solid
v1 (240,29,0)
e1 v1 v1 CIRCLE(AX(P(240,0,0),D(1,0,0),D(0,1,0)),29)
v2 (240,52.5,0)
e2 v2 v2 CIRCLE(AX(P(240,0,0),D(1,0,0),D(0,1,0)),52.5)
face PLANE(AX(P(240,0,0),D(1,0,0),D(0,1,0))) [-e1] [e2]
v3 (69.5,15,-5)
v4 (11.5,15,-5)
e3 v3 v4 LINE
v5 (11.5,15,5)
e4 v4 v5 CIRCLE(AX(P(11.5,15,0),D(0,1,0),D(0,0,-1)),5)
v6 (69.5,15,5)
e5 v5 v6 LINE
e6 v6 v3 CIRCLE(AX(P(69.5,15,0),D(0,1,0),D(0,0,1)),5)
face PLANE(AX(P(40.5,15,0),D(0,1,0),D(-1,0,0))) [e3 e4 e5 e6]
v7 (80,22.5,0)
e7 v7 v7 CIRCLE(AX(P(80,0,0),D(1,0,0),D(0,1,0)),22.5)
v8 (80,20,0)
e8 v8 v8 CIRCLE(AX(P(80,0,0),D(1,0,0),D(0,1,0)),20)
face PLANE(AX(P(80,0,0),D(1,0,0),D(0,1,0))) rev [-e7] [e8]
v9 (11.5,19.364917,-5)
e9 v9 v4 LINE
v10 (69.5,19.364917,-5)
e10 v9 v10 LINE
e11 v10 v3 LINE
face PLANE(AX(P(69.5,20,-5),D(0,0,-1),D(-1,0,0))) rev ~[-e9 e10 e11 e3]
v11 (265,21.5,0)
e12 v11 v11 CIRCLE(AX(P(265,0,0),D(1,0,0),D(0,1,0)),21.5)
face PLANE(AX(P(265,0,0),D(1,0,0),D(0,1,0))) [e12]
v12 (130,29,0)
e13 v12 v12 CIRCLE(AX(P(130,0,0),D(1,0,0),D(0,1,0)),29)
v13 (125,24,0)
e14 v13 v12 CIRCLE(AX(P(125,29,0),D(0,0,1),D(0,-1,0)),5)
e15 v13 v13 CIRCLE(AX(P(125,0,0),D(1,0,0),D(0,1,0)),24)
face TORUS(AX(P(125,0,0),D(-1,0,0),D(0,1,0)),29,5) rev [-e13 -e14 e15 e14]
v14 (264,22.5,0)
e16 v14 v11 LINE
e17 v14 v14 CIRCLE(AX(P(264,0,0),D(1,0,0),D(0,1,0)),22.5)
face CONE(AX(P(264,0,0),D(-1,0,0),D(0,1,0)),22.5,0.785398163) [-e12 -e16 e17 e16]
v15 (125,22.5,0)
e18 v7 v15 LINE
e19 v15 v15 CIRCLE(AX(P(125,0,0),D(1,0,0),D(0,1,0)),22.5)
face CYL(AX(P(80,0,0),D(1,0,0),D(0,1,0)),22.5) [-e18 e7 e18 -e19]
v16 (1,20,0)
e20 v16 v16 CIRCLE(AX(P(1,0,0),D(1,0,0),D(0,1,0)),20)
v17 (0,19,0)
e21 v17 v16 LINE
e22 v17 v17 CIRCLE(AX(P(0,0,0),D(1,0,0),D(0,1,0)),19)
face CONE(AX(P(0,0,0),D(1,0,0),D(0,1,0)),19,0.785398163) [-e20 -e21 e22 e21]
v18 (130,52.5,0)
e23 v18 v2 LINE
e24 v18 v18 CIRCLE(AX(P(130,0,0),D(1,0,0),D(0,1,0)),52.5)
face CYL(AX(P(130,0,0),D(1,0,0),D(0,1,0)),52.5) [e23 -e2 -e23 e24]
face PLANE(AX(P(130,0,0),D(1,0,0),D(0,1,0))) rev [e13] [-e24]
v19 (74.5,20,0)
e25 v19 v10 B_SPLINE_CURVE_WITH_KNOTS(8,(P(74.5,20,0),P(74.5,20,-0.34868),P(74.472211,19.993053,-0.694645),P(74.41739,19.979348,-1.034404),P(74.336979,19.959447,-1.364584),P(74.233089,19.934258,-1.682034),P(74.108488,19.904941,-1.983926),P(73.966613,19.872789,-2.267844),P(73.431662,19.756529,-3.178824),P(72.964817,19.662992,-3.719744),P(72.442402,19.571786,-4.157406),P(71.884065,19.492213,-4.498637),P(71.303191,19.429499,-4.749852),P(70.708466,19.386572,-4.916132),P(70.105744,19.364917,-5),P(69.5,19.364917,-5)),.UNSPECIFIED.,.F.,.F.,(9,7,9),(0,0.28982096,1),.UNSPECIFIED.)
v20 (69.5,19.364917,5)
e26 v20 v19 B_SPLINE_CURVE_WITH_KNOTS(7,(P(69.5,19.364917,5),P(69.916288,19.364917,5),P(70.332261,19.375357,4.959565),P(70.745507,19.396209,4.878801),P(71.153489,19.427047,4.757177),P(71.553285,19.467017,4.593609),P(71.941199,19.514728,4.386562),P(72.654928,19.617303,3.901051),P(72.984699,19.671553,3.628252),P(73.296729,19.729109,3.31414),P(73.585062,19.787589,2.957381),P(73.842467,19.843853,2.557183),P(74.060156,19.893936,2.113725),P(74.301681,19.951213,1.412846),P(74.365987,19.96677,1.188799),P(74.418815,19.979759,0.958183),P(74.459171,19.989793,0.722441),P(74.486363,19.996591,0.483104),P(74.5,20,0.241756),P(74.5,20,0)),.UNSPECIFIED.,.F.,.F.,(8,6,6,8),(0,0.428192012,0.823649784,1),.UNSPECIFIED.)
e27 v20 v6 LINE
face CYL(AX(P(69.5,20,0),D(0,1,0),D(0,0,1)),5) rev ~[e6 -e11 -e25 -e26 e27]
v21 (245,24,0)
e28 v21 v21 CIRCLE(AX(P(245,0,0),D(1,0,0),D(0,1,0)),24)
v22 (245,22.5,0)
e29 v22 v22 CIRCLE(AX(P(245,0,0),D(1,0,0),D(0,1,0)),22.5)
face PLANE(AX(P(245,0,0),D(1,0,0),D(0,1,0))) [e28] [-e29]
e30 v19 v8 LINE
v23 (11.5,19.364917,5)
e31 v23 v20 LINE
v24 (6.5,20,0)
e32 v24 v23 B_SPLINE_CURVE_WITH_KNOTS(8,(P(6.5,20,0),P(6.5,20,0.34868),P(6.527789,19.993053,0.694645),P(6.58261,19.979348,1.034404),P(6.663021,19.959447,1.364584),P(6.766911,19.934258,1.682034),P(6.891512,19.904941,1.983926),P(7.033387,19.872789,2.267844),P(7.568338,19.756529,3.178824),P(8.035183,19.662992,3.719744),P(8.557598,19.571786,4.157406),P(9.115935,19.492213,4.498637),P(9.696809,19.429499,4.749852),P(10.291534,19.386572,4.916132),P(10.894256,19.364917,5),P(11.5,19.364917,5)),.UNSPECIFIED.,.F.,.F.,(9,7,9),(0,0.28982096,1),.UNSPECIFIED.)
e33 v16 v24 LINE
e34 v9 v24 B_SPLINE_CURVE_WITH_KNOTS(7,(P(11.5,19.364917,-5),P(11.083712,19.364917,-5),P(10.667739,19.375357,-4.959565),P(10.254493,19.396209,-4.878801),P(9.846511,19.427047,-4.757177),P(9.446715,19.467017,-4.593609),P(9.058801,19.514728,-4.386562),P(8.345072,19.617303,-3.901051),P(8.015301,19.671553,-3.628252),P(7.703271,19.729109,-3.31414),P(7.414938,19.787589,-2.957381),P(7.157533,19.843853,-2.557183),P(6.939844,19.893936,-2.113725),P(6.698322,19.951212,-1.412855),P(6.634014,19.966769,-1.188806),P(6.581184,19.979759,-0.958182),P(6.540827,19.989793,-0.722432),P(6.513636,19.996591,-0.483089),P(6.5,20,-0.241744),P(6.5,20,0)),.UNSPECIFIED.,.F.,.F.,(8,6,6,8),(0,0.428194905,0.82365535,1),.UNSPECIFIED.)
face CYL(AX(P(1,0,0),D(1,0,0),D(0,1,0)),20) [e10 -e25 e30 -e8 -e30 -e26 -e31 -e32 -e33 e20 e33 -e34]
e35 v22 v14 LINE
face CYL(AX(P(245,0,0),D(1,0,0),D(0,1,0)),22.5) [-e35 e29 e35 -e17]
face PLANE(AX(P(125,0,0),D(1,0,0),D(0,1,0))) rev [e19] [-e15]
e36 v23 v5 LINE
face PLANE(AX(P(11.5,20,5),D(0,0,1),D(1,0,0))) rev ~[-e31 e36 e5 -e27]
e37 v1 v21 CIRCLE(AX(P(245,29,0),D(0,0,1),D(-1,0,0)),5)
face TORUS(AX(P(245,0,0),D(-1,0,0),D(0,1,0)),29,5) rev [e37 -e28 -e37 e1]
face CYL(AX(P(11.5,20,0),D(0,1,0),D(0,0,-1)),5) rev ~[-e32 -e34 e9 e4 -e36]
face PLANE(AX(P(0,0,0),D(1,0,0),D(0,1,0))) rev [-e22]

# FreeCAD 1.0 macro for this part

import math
import FreeCAD as App
import Part
import Sketcher
Q = App.Units.Quantity

doc = App.newDocument("Part")
body = doc.addObject("PartDesign::Body", "Body")

# Sketch on XY plane
sketch1 = body.newObject("Sketcher::SketchObject", "Sketch")
sketch1.AttachmentSupport = (doc.getObject("XY_Plane"), [""])
sketch1.MapMode = "FlatFace"
sketch1.addGeometry(Part.LineSegment(App.Vector(0, 19, 0), App.Vector(0, 0, 0)), False)
sketch1.addGeometry(Part.LineSegment(App.Vector(0, 0, 0), App.Vector(265, 0, 0)), False)
sketch1.addGeometry(Part.LineSegment(App.Vector(265, 0, 0), App.Vector(265, 21.5, 0)), False)
sketch1.addGeometry(Part.LineSegment(App.Vector(265, 21.5, 0), App.Vector(264, 22.5, 0)), False)
sketch1.addGeometry(Part.LineSegment(App.Vector(264, 22.5, 0), App.Vector(245, 22.5, 0)), False)
sketch1.addGeometry(Part.LineSegment(App.Vector(245, 22.5, 0), App.Vector(245, 24, 0)), False)
sketch1.addGeometry(Part.ArcOfCircle(Part.Circle(App.Vector(245, 29, 0), App.Vector(0, 0, 1), 5), math.radians(180), math.radians(270)), False)
sketch1.addGeometry(Part.LineSegment(App.Vector(240, 29, 0), App.Vector(240, 52.5, 0)), False)
sketch1.addGeometry(Part.LineSegment(App.Vector(240, 52.5, 0), App.Vector(130, 52.5, 0)), False)
sketch1.addGeometry(Part.LineSegment(App.Vector(130, 52.5, 0), App.Vector(130, 29, 0)), False)
sketch1.addGeometry(Part.ArcOfCircle(Part.Circle(App.Vector(125, 29, 0), App.Vector(0, 0, 1), 5), math.radians(-90), math.radians(0)), False)
sketch1.addGeometry(Part.LineSegment(App.Vector(125, 24, 0), App.Vector(125, 22.5, 0)), False)
sketch1.addGeometry(Part.LineSegment(App.Vector(125, 22.5, 0), App.Vector(80, 22.5, 0)), False)
sketch1.addGeometry(Part.LineSegment(App.Vector(80, 22.5, 0), App.Vector(80, 20, 0)), False)
sketch1.addGeometry(Part.LineSegment(App.Vector(80, 20, 0), App.Vector(1, 20, 0)), False)
sketch1.addGeometry(Part.LineSegment(App.Vector(1, 20, 0), App.Vector(0, 19, 0)), False)
sketch1.addConstraint(Sketcher.Constraint("Coincident", 0, 2, 1, 1))
sketch1.addConstraint(Sketcher.Constraint("Coincident", 1, 2, 2, 1))
sketch1.addConstraint(Sketcher.Constraint("Coincident", 2, 2, 3, 1))
sketch1.addConstraint(Sketcher.Constraint("Coincident", 3, 2, 4, 1))
sketch1.addConstraint(Sketcher.Constraint("Coincident", 4, 2, 5, 1))
sketch1.addConstraint(Sketcher.Constraint("Coincident", 5, 2, 6, 2))
sketch1.addConstraint(Sketcher.Constraint("Tangent", 6, 1, 7, 1))
sketch1.addConstraint(Sketcher.Constraint("Coincident", 7, 2, 8, 1))
sketch1.addConstraint(Sketcher.Constraint("Coincident", 8, 2, 9, 1))
sketch1.addConstraint(Sketcher.Constraint("Tangent", 9, 2, 10, 2))
sketch1.addConstraint(Sketcher.Constraint("Coincident", 10, 1, 11, 1))
sketch1.addConstraint(Sketcher.Constraint("Coincident", 11, 2, 12, 1))
sketch1.addConstraint(Sketcher.Constraint("Coincident", 12, 2, 13, 1))
sketch1.addConstraint(Sketcher.Constraint("Coincident", 13, 2, 14, 1))
sketch1.addConstraint(Sketcher.Constraint("Coincident", 14, 2, 15, 1))
sketch1.addConstraint(Sketcher.Constraint("Coincident", 15, 2, 0, 1))
sketch1.addConstraint(Sketcher.Constraint("Vertical", 0))
sketch1.addConstraint(Sketcher.Constraint("Horizontal", 1))
sketch1.addConstraint(Sketcher.Constraint("Vertical", 2))
sketch1.addConstraint(Sketcher.Constraint("Horizontal", 4))
sketch1.addConstraint(Sketcher.Constraint("Vertical", 5))
sketch1.addConstraint(Sketcher.Constraint("Vertical", 7))
sketch1.addConstraint(Sketcher.Constraint("Horizontal", 8))
sketch1.addConstraint(Sketcher.Constraint("Vertical", 9))
sketch1.addConstraint(Sketcher.Constraint("Vertical", 11))
sketch1.addConstraint(Sketcher.Constraint("Horizontal", 12))
sketch1.addConstraint(Sketcher.Constraint("Vertical", 13))
sketch1.addConstraint(Sketcher.Constraint("Horizontal", 14))
sketch1.addConstraint(Sketcher.Constraint("Coincident", 0, 2, -1, 1))
sketch1.addConstraint(Sketcher.Constraint("Equal", 6, 10))
sketch1.addConstraint(Sketcher.Constraint("Perpendicular", 3, 15))
sketch1.addConstraint(Sketcher.Constraint("Horizontal", 6, 3, 10, 3))
sketch1.addConstraint(Sketcher.Constraint("Horizontal", 4, 2, 11, 2))
sketch1.addConstraint(Sketcher.Constraint("Vertical", 6, 3, 4, 2))
sketch1.addConstraint(Sketcher.Constraint("Equal", 4, 0))
sketch1.addConstraint(Sketcher.Constraint("Equal", 3, 15))
sketch1.addConstraint(Sketcher.Constraint("Radius", 6, Q("5 mm")))
sketch1.addConstraint(Sketcher.Constraint("DistanceX", 8, 2, 8, 1, Q("110 mm")))
sketch1.addConstraint(Sketcher.Constraint("DistanceX", 12, 2, 12, 1, Q("45 mm")))
sketch1.addConstraint(Sketcher.Constraint("DistanceY", -1, 1, 5, 2, Q("24 mm")))
sketch1.addConstraint(Sketcher.Constraint("DistanceX", -1, 1, 12, 2, Q("80 mm")))
sketch1.addConstraint(Sketcher.Constraint("DistanceY", -1, 1, 13, 2, Q("20 mm")))
sketch1.addConstraint(Sketcher.Constraint("DistanceX", -1, 1, 14, 2, Q("1 mm")))
sketch1.addConstraint(Sketcher.Constraint("DistanceX", 3, 2, 2, 2, Q("1 mm")))
sketch1.addConstraint(Sketcher.Constraint("DistanceX", 10, 1, 9, 2, Q("5 mm")))
sketch1.addConstraint(Sketcher.Constraint("DistanceY", -1, 1, 3, 2, Q("22.5 mm")))
sketch1.addConstraint(Sketcher.Constraint("DistanceY", -1, 1, 7, 2, Q("52.5 mm")))
revolution = body.newObject("PartDesign::Revolution", "Revolution")
revolution.Profile = sketch1
revolution.ReferenceAxis = (sketch1, ["H_Axis"])
revolution.Angle = 360

# Sketch on XZ plane
sketch2 = body.newObject("Sketcher::SketchObject", "Sketch001")
sketch2.AttachmentSupport = (doc.getObject("XZ_Plane"), [""])
sketch2.MapMode = "FlatFace"
sketch2.AttachmentOffset = App.Placement(App.Vector(0, 0, -20), App.Rotation())
sketch2.addGeometry(Part.ArcOfCircle(Part.Circle(App.Vector(70, 0, 0), App.Vector(0, 0, 1), 5), math.radians(-90), math.radians(90)), False)
sketch2.addGeometry(Part.LineSegment(App.Vector(70, -5, 0), App.Vector(12, -5, 0)), False)
sketch2.addGeometry(Part.ArcOfCircle(Part.Circle(App.Vector(12, 0, 0), App.Vector(0, 0, 1), 5), math.radians(90), math.radians(270)), False)
sketch2.addGeometry(Part.LineSegment(App.Vector(12, 5, 0), App.Vector(70, 5, 0)), False)
sketch2.addConstraint(Sketcher.Constraint("Tangent", 0, 1, 1, 1))
sketch2.addConstraint(Sketcher.Constraint("Tangent", 1, 2, 2, 2))
sketch2.addConstraint(Sketcher.Constraint("Tangent", 2, 1, 3, 1))
sketch2.addConstraint(Sketcher.Constraint("Tangent", 3, 2, 0, 2))
sketch2.addConstraint(Sketcher.Constraint("Horizontal", 1))
sketch2.addConstraint(Sketcher.Constraint("Horizontal", 3))
sketch2.addConstraint(Sketcher.Constraint("PointOnObject", 0, 3, -1))
sketch2.addConstraint(Sketcher.Constraint("Radius", 0, Q("5 mm")))
sketch2.addConstraint(Sketcher.Constraint("DistanceX", 1, 2, 1, 1, Q("58 mm")))
sketch2.addConstraint(Sketcher.Constraint("DistanceX", -1, 1, 0, 3, Q("69.5 mm")))
pocket1 = body.newObject("PartDesign::Pocket", "Pocket")
pocket1.Profile = sketch2
pocket1.Length = 5
pocket1.Reversed = True

doc.recompute()
